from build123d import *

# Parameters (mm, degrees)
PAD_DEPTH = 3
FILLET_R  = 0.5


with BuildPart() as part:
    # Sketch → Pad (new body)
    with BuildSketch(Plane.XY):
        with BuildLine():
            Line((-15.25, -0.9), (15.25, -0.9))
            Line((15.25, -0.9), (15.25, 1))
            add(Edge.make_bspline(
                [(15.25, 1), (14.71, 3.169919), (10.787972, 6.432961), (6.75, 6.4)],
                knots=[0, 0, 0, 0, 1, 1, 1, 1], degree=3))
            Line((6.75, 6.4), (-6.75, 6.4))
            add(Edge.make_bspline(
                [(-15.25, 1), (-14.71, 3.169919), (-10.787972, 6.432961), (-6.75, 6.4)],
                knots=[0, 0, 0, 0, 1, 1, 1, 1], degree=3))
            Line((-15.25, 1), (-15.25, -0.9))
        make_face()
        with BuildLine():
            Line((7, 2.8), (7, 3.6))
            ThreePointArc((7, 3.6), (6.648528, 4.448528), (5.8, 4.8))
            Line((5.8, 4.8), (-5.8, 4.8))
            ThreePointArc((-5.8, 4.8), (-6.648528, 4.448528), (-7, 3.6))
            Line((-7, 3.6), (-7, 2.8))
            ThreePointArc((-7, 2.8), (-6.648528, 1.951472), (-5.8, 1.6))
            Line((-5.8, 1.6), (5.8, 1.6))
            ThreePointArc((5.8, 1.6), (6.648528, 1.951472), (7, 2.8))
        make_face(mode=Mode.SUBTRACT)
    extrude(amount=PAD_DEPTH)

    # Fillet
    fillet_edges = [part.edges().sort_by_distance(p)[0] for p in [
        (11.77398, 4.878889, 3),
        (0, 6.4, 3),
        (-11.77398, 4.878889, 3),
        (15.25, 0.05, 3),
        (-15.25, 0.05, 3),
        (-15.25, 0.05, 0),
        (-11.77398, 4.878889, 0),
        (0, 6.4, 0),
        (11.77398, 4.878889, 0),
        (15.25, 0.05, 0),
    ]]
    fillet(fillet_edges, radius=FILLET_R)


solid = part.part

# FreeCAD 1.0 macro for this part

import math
import FreeCAD as App
import Part
import Sketcher
from FreeCAD import Vector
Q = App.Units.Quantity


def edges_at(feature, points):
    """Names of the edges that pass closest to the given points."""
    edges = feature.Shape.Edges
    near = lambda p: min(range(len(edges)), key=lambda i: edges[i].distToShape(Part.Vertex(*p))[0])
    return sorted({f"Edge{near(p) + 1}" for p in points})

doc = App.newDocument("Part")
body = doc.addObject("PartDesign::Body", "Body")

sketch1 = body.newObject("Sketcher::SketchObject", "Sketch")
sketch1.AttachmentSupport = (doc.getObject("XY_Plane"), [""])
sketch1.MapMode = "FlatFace"
sketch1.addGeometry([
    Part.LineSegment(Vector(-15.25, -0.9, 0), Vector(15.25, -0.9, 0)),
    Part.LineSegment(Vector(15.25, -0.9, 0), Vector(15.25, 1, 0)),
    Part.BSplineCurve([Vector(15.25, 1, 0), Vector(14.71, 3.169919, 0), Vector(10.787972, 6.432961, 0), Vector(6.75, 6.4, 0)], [4, 4], [0, 1], False, 3, [1, 1, 1, 1], False),
    Part.LineSegment(Vector(6.75, 6.4, 0), Vector(-6.75, 6.4, 0)),
    Part.BSplineCurve([Vector(-15.25, 1, 0), Vector(-14.71, 3.169919, 0), Vector(-10.787972, 6.432961, 0), Vector(-6.75, 6.4, 0)], [4, 4], [0, 1], False, 3, [1, 1, 1, 1], False),
    Part.LineSegment(Vector(-15.25, 1, 0), Vector(-15.25, -0.9, 0)),
    Part.LineSegment(Vector(7, 3.6, 0), Vector(7, 2.8, 0)),
    Part.ArcOfCircle(Part.Circle(Vector(5.8, 2.8, 0), Vector(0, 0, 1), 1.2), math.radians(-89.999978), math.radians(-0.000022)),
    Part.LineSegment(Vector(5.8, 1.6, 0), Vector(-5.8, 1.6, 0)),
    Part.ArcOfCircle(Part.Circle(Vector(-5.8, 2.8, 0), Vector(0, 0, 1), 1.2), math.radians(-179.999978), math.radians(-90.000022)),
    Part.LineSegment(Vector(-7, 2.8, 0), Vector(-7, 3.6, 0)),
    Part.ArcOfCircle(Part.Circle(Vector(-5.8, 3.6, 0), Vector(0, 0, 1), 1.2), math.radians(90.000022), math.radians(179.999978)),
    Part.LineSegment(Vector(-5.8, 4.8, 0), Vector(5.8, 4.8, 0)),
    Part.ArcOfCircle(Part.Circle(Vector(5.8, 3.6, 0), Vector(0, 0, 1), 1.2), math.radians(0.000022), math.radians(89.999978)),
], False)
sketch1.addConstraint([
    Sketcher.Constraint("Block", 2),
    Sketcher.Constraint("Block", 4),
    Sketcher.Constraint("Coincident", 0, 2, 1, 1),
    Sketcher.Constraint("Coincident", 1, 2, 2, 1),
    Sketcher.Constraint("Coincident", 2, 2, 3, 1),
    Sketcher.Constraint("Coincident", 3, 2, 4, 2),
    Sketcher.Constraint("Coincident", 4, 1, 5, 1),
    Sketcher.Constraint("Coincident", 5, 2, 0, 1),
    Sketcher.Constraint("Tangent", 6, 2, 7, 2),
    Sketcher.Constraint("Tangent", 7, 1, 8, 1),
    Sketcher.Constraint("Tangent", 8, 2, 9, 2),
    Sketcher.Constraint("Tangent", 9, 1, 10, 1),
    Sketcher.Constraint("Tangent", 10, 2, 11, 2),
    Sketcher.Constraint("Tangent", 11, 1, 12, 1),
    Sketcher.Constraint("Tangent", 12, 2, 13, 2),
    Sketcher.Constraint("Tangent", 13, 1, 6, 1),
    Sketcher.Constraint("Horizontal", 0),
    Sketcher.Constraint("Vertical", 1),
    Sketcher.Constraint("Vertical", 5),
    Sketcher.Constraint("Vertical", 6),
    Sketcher.Constraint("Horizontal", 8),
    Sketcher.Constraint("Vertical", 10),
    Sketcher.Constraint("Horizontal", 12),
    Sketcher.Constraint("Equal", 7, 9),
    Sketcher.Constraint("Equal", 9, 11),
    Sketcher.Constraint("Equal", 11, 13),
    Sketcher.Constraint("Radius", 7, Q("1.2 mm")),
    Sketcher.Constraint("DistanceX", 8, 2, 8, 1, Q("11.6 mm")),
    Sketcher.Constraint("DistanceY", 1, 1, 1, 2, Q("1.9 mm")),
    Sketcher.Constraint("DistanceY", 6, 2, 6, 1, Q("0.8 mm")),
    Sketcher.Constraint("DistanceX", -1, 1, 6, 2, Q("7 mm")),
    Sketcher.Constraint("DistanceY", -1, 1, 7, 3, Q("2.8 mm")),
])
pad1 = body.newObject("PartDesign::Pad", "Pad")
pad1.Profile = sketch1
pad1.Length = 3
doc.recompute()

fillet = body.newObject("PartDesign::Fillet", "Fillet")
fillet.Base = (pad1, edges_at(pad1, [
    (11.774, 4.879, 3),
    (0, 6.4, 3),
    (-11.774, 4.879, 3),
    (15.25, 0.05, 3),
    (-15.25, 0.05, 3),
    (-15.25, 0.05, 0),
    (-11.774, 4.879, 0),
    (0, 6.4, 0),
    (11.774, 4.879, 0),
    (15.25, 0.05, 0),
]))
fillet.Radius = 0.5

doc.recompute()
